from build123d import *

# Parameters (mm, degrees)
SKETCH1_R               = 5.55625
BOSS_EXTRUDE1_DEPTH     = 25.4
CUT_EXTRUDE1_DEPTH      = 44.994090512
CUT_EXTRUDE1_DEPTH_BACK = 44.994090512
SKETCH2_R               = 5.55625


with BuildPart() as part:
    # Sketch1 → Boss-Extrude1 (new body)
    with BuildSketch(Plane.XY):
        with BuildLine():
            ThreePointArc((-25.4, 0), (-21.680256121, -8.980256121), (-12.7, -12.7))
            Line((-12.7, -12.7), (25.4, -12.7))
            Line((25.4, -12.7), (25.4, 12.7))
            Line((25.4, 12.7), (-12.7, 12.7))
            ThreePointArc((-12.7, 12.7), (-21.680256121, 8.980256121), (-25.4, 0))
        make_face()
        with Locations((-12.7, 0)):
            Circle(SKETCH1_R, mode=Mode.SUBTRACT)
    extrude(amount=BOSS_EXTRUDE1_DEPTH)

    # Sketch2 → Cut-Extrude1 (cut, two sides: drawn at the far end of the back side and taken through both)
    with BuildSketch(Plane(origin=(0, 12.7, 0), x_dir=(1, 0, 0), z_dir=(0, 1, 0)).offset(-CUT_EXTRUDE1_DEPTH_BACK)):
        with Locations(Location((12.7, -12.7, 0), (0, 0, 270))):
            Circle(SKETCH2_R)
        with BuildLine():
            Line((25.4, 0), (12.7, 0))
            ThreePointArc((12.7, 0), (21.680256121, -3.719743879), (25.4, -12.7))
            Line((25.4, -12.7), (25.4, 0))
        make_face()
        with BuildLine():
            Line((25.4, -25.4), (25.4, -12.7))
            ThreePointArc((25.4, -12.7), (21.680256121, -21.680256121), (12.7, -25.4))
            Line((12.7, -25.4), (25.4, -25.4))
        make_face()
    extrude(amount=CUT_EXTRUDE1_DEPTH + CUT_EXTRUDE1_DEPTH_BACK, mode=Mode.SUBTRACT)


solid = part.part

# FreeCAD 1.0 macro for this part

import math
import FreeCAD as App
import Part
import Sketcher
from FreeCAD import Vector
Q = App.Units.Quantity

doc = App.newDocument("Part")
body = doc.addObject("PartDesign::Body", "Body")

# Sketch on XY plane
sketch1 = doc.addObject("Sketcher::SketchObject", "Sketch")
body.addObject(sketch1)
sketch1.AttachmentSupport = (doc.XY_Plane, [""])
sketch1.MapMode = "FlatFace"
sketch1.addGeometry([
    Part.ArcOfCircle(Part.Circle(Vector(-13, 0, 0), Vector(0, 0, 1), 13), math.radians(180), math.radians(270)),  # 0
    Part.LineSegment(Vector(-13, -13, 0), Vector(25, -13, 0)),  # 1
    Part.LineSegment(Vector(25, -13, 0), Vector(25, 13, 0)),  # 2
    Part.LineSegment(Vector(25, 13, 0), Vector(-13, 13, 0)),  # 3
    Part.ArcOfCircle(Part.Circle(Vector(-13, 0, 0), Vector(0, 0, 1), 13), math.radians(90), math.radians(180)),  # 4
    Part.Circle(Vector(-13, 0, 0), Vector(0, 0, 1), 6),  # 5
], False)
sketch1.addConstraint([
    Sketcher.Constraint("Tangent", 0, 2, 1, 1),
    Sketcher.Constraint("Coincident", 1, 2, 2, 1),
    Sketcher.Constraint("Coincident", 2, 2, 3, 1),
    Sketcher.Constraint("Tangent", 3, 2, 4, 1),
    Sketcher.Constraint("Tangent", 4, 2, 0, 1),
    Sketcher.Constraint("Horizontal", 1),
    Sketcher.Constraint("Vertical", 2),
    Sketcher.Constraint("Horizontal", 3),
    Sketcher.Constraint("Coincident", 5, 3, 0, 3),
    Sketcher.Constraint("Equal", 0, 4),
    Sketcher.Constraint("PointOnObject", 0, 3, -1),
    Sketcher.Constraint("PointOnObject", 4, 2, -1),
    Sketcher.Constraint("Radius", 0, Q("0.5 in")),
    Sketcher.Constraint("Diameter", 5, Q("0.4375 in")),
    Sketcher.Constraint("DistanceX", 1, 1, 1, 2, Q("1.5 in")),
    Sketcher.Constraint("DistanceX", -1, 1, 1, 2, Q("1 in")),
])
pad1 = doc.addObject("PartDesign::Pad", "Pad")
body.addObject(pad1)
pad1.Profile = sketch1
pad1.Length = Q("1 in")

# Sketch on XZ plane
sketch2 = doc.addObject("Sketcher::SketchObject", "Sketch001")
body.addObject(sketch2)
sketch2.AttachmentSupport = (doc.XZ_Plane, [""])
sketch2.MapMode = "FlatFace"
sketch2.AttachmentOffset = App.Placement(Vector(0, 0, -0.5 * 25.4), App.Rotation())
sketch2.addGeometry([
    Part.Circle(Vector(13, 13, 0), Vector(0, 0, 1), 6),  # 0
    Part.LineSegment(Vector(25, 0, 0), Vector(13, 0, 0)),  # 1
    Part.ArcOfCircle(Part.Circle(Vector(13, 13, 0), Vector(0, 0, 1), 13), math.radians(-90), math.radians(0)),  # 2
    Part.LineSegment(Vector(25, 13, 0), Vector(25, 0, 0)),  # 3
    Part.LineSegment(Vector(25, 25, 0), Vector(25, 13, 0)),  # 4
    Part.ArcOfCircle(Part.Circle(Vector(13, 13, 0), Vector(0, 0, 1), 13), math.radians(0), math.radians(90)),  # 5
    Part.LineSegment(Vector(13, 25, 0), Vector(25, 25, 0)),  # 6
], False)
sketch2.addConstraint([
    Sketcher.Constraint("Tangent", 1, 2, 2, 1),
    Sketcher.Constraint("Tangent", 2, 2, 3, 1),
    Sketcher.Constraint("Coincident", 3, 2, 1, 1),
    Sketcher.Constraint("Tangent", 4, 2, 5, 1),
    Sketcher.Constraint("Tangent", 5, 2, 6, 1),
    Sketcher.Constraint("Coincident", 6, 2, 4, 1),
    Sketcher.Constraint("Horizontal", 1),
    Sketcher.Constraint("Vertical", 3),
    Sketcher.Constraint("Vertical", 4),
    Sketcher.Constraint("Horizontal", 6),
    Sketcher.Constraint("Coincident", 2, 3, 0, 3),
    Sketcher.Constraint("Coincident", 5, 3, 0, 3),
    Sketcher.Constraint("Equal", 2, 5),
    Sketcher.Constraint("PointOnObject", 1, 2, -1),
    Sketcher.Constraint("Radius", 2, Q("0.5 in")),
    Sketcher.Constraint("Diameter", 0, Q("0.4375 in")),
    Sketcher.Constraint("DistanceX", -1, 1, 2, 2, Q("1 in")),
])
pocket1 = doc.addObject("PartDesign::Pocket", "Pocket")
body.addObject(pocket1)
pocket1.Profile = sketch2
pocket1.Type = "ThroughAll"
pocket1.Midplane = True

doc.recompute()
